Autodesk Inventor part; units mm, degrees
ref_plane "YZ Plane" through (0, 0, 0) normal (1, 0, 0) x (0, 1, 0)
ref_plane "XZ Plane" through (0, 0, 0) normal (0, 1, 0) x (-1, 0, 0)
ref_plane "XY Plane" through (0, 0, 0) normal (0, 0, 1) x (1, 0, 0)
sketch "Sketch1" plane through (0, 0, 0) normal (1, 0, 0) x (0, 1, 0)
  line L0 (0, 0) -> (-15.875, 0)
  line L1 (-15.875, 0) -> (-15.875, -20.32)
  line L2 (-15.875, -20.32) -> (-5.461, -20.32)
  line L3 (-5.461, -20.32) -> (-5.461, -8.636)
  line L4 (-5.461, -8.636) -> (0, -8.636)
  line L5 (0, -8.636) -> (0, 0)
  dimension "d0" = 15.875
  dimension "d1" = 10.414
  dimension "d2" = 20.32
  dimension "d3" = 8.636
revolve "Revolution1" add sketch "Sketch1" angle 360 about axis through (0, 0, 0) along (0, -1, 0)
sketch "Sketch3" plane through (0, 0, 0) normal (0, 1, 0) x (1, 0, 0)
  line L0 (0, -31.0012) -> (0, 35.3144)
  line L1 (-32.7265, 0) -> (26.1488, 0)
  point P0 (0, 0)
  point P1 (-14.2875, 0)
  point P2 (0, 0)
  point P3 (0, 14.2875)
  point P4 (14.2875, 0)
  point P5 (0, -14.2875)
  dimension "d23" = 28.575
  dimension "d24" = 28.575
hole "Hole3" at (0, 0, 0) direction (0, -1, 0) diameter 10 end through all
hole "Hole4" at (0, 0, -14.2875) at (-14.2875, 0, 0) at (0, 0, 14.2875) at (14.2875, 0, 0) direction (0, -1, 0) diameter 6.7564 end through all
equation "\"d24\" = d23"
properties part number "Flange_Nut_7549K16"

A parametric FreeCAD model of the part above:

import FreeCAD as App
import Part
import Sketcher

V = App.Vector
Q = App.Units.Quantity

doc = App.newDocument("Part")
body = doc.addObject("PartDesign::Body", "Body")

sketch1 = body.newObject("Sketcher::SketchObject", "Sketch")
sketch1.AttachmentSupport = (doc.getObject("YZ_Plane"), [""])
sketch1.MapMode = "FlatFace"
sketch1.addGeometry(Part.LineSegment(V(0, -9, 0), V(0, 0, 0)), False)
sketch1.addGeometry(Part.LineSegment(V(0, 0, 0), V(-16, 0, 0)), False)
sketch1.addGeometry(Part.LineSegment(V(-16, 0, 0), V(-16, -20, 0)), False)
sketch1.addGeometry(Part.LineSegment(V(-16, -20, 0), V(-5, -20, 0)), False)
sketch1.addGeometry(Part.LineSegment(V(-5, -20, 0), V(-5, -9, 0)), False)
sketch1.addGeometry(Part.LineSegment(V(-5, -9, 0), V(0, -9, 0)), False)
sketch1.addConstraint(Sketcher.Constraint("Coincident", 0, 2, 1, 1))
sketch1.addConstraint(Sketcher.Constraint("Coincident", 1, 2, 2, 1))
sketch1.addConstraint(Sketcher.Constraint("Coincident", 2, 2, 3, 1))
sketch1.addConstraint(Sketcher.Constraint("Coincident", 3, 2, 4, 1))
sketch1.addConstraint(Sketcher.Constraint("Coincident", 4, 2, 5, 1))
sketch1.addConstraint(Sketcher.Constraint("Coincident", 5, 2, 0, 1))
sketch1.addConstraint(Sketcher.Constraint("Vertical", 0))
sketch1.addConstraint(Sketcher.Constraint("Horizontal", 1))
sketch1.addConstraint(Sketcher.Constraint("Vertical", 2))
sketch1.addConstraint(Sketcher.Constraint("Horizontal", 3))
sketch1.addConstraint(Sketcher.Constraint("Vertical", 4))
sketch1.addConstraint(Sketcher.Constraint("Horizontal", 5))
sketch1.addConstraint(Sketcher.Constraint("Coincident", 0, 2, -1, 1))
sketch1.addConstraint(Sketcher.Constraint("DistanceY", 2, 2, 2, 1, Q("0.8 in")))
sketch1.addConstraint(Sketcher.Constraint("DistanceX", 3, 1, 3, 2, Q("0.41 in")))
sketch1.addConstraint(Sketcher.Constraint("DistanceY", 0, 1, 0, 2, Q("0.34 in")))
sketch1.addConstraint(Sketcher.Constraint("DistanceX", 1, 2, 1, 1, Q("0.625 in")))
revolution = body.newObject("PartDesign::Revolution", "Revolution")
revolution.Profile = sketch1
revolution.ReferenceAxis = (sketch1, ["H_Axis"])
revolution.Angle = 360

sketch2 = body.newObject("Sketcher::SketchObject", "Sketch001")
sketch2.AttachmentSupport = (doc.getObject("XZ_Plane"), [""])
sketch2.MapMode = "FlatFace"
sketch2.addGeometry(Part.Circle(V(0, 0, 0), V(0, 0, 1), 5), False)
sketch2.addConstraint(Sketcher.Constraint("Coincident", 0, 3, -1, 1))
sketch2.addConstraint(Sketcher.Constraint("Diameter", 0, Q("0.3937 in")))
doc.recompute()
hole = body.newObject("PartDesign::Hole", "Hole")
hole.Profile = sketch2
hole.ThreadType = "None"
hole.Diameter = Q("0.3937008 in")
hole.DepthType = "ThroughAll"
hole.Reversed = True

sketch3 = body.newObject("Sketcher::SketchObject", "Sketch002")
sketch3.AttachmentSupport = (doc.getObject("XZ_Plane"), [""])
sketch3.MapMode = "FlatFace"
sketch3.addGeometry(Part.Circle(V(0, -14.3, 0), V(0, 0, 1), 3.4), False)
sketch3.addGeometry(Part.Circle(V(-14.3, 0, 0), V(0, 0, 1), 3.4), False)
sketch3.addGeometry(Part.Circle(V(0, 14.3, 0), V(0, 0, 1), 3.4), False)
sketch3.addGeometry(Part.Circle(V(14.3, 0, 0), V(0, 0, 1), 3.4), False)
sketch3.addConstraint(Sketcher.Constraint("Equal", 0, 1))
sketch3.addConstraint(Sketcher.Constraint("Equal", 1, 2))
sketch3.addConstraint(Sketcher.Constraint("Equal", 2, 3))
sketch3.addConstraint(Sketcher.Constraint("Symmetric", 0, 3, 2, 3, -1, 1))
sketch3.addConstraint(Sketcher.Constraint("Symmetric", 1, 3, 3, 3, -1, 1))
sketch3.addConstraint(Sketcher.Constraint("PointOnObject", 0, 3, -2))
sketch3.addConstraint(Sketcher.Constraint("PointOnObject", 1, 3, -1))
sketch3.addConstraint(Sketcher.Constraint("Diameter", 0, Q("0.266 in")))
sketch3.addConstraint(Sketcher.Constraint("DistanceY", 0, 3, -1, 1, Q("0.5625 in")))
sketch3.addConstraint(Sketcher.Constraint("DistanceX", 1, 3, -1, 1, Q("0.5625 in")))
doc.recompute()
hole2 = body.newObject("PartDesign::Hole", "Hole001")
hole2.Profile = sketch3
hole2.ThreadType = "None"
hole2.Diameter = Q("0.266 in")
hole2.DepthType = "ThroughAll"
hole2.Reversed = True

doc.recompute()
